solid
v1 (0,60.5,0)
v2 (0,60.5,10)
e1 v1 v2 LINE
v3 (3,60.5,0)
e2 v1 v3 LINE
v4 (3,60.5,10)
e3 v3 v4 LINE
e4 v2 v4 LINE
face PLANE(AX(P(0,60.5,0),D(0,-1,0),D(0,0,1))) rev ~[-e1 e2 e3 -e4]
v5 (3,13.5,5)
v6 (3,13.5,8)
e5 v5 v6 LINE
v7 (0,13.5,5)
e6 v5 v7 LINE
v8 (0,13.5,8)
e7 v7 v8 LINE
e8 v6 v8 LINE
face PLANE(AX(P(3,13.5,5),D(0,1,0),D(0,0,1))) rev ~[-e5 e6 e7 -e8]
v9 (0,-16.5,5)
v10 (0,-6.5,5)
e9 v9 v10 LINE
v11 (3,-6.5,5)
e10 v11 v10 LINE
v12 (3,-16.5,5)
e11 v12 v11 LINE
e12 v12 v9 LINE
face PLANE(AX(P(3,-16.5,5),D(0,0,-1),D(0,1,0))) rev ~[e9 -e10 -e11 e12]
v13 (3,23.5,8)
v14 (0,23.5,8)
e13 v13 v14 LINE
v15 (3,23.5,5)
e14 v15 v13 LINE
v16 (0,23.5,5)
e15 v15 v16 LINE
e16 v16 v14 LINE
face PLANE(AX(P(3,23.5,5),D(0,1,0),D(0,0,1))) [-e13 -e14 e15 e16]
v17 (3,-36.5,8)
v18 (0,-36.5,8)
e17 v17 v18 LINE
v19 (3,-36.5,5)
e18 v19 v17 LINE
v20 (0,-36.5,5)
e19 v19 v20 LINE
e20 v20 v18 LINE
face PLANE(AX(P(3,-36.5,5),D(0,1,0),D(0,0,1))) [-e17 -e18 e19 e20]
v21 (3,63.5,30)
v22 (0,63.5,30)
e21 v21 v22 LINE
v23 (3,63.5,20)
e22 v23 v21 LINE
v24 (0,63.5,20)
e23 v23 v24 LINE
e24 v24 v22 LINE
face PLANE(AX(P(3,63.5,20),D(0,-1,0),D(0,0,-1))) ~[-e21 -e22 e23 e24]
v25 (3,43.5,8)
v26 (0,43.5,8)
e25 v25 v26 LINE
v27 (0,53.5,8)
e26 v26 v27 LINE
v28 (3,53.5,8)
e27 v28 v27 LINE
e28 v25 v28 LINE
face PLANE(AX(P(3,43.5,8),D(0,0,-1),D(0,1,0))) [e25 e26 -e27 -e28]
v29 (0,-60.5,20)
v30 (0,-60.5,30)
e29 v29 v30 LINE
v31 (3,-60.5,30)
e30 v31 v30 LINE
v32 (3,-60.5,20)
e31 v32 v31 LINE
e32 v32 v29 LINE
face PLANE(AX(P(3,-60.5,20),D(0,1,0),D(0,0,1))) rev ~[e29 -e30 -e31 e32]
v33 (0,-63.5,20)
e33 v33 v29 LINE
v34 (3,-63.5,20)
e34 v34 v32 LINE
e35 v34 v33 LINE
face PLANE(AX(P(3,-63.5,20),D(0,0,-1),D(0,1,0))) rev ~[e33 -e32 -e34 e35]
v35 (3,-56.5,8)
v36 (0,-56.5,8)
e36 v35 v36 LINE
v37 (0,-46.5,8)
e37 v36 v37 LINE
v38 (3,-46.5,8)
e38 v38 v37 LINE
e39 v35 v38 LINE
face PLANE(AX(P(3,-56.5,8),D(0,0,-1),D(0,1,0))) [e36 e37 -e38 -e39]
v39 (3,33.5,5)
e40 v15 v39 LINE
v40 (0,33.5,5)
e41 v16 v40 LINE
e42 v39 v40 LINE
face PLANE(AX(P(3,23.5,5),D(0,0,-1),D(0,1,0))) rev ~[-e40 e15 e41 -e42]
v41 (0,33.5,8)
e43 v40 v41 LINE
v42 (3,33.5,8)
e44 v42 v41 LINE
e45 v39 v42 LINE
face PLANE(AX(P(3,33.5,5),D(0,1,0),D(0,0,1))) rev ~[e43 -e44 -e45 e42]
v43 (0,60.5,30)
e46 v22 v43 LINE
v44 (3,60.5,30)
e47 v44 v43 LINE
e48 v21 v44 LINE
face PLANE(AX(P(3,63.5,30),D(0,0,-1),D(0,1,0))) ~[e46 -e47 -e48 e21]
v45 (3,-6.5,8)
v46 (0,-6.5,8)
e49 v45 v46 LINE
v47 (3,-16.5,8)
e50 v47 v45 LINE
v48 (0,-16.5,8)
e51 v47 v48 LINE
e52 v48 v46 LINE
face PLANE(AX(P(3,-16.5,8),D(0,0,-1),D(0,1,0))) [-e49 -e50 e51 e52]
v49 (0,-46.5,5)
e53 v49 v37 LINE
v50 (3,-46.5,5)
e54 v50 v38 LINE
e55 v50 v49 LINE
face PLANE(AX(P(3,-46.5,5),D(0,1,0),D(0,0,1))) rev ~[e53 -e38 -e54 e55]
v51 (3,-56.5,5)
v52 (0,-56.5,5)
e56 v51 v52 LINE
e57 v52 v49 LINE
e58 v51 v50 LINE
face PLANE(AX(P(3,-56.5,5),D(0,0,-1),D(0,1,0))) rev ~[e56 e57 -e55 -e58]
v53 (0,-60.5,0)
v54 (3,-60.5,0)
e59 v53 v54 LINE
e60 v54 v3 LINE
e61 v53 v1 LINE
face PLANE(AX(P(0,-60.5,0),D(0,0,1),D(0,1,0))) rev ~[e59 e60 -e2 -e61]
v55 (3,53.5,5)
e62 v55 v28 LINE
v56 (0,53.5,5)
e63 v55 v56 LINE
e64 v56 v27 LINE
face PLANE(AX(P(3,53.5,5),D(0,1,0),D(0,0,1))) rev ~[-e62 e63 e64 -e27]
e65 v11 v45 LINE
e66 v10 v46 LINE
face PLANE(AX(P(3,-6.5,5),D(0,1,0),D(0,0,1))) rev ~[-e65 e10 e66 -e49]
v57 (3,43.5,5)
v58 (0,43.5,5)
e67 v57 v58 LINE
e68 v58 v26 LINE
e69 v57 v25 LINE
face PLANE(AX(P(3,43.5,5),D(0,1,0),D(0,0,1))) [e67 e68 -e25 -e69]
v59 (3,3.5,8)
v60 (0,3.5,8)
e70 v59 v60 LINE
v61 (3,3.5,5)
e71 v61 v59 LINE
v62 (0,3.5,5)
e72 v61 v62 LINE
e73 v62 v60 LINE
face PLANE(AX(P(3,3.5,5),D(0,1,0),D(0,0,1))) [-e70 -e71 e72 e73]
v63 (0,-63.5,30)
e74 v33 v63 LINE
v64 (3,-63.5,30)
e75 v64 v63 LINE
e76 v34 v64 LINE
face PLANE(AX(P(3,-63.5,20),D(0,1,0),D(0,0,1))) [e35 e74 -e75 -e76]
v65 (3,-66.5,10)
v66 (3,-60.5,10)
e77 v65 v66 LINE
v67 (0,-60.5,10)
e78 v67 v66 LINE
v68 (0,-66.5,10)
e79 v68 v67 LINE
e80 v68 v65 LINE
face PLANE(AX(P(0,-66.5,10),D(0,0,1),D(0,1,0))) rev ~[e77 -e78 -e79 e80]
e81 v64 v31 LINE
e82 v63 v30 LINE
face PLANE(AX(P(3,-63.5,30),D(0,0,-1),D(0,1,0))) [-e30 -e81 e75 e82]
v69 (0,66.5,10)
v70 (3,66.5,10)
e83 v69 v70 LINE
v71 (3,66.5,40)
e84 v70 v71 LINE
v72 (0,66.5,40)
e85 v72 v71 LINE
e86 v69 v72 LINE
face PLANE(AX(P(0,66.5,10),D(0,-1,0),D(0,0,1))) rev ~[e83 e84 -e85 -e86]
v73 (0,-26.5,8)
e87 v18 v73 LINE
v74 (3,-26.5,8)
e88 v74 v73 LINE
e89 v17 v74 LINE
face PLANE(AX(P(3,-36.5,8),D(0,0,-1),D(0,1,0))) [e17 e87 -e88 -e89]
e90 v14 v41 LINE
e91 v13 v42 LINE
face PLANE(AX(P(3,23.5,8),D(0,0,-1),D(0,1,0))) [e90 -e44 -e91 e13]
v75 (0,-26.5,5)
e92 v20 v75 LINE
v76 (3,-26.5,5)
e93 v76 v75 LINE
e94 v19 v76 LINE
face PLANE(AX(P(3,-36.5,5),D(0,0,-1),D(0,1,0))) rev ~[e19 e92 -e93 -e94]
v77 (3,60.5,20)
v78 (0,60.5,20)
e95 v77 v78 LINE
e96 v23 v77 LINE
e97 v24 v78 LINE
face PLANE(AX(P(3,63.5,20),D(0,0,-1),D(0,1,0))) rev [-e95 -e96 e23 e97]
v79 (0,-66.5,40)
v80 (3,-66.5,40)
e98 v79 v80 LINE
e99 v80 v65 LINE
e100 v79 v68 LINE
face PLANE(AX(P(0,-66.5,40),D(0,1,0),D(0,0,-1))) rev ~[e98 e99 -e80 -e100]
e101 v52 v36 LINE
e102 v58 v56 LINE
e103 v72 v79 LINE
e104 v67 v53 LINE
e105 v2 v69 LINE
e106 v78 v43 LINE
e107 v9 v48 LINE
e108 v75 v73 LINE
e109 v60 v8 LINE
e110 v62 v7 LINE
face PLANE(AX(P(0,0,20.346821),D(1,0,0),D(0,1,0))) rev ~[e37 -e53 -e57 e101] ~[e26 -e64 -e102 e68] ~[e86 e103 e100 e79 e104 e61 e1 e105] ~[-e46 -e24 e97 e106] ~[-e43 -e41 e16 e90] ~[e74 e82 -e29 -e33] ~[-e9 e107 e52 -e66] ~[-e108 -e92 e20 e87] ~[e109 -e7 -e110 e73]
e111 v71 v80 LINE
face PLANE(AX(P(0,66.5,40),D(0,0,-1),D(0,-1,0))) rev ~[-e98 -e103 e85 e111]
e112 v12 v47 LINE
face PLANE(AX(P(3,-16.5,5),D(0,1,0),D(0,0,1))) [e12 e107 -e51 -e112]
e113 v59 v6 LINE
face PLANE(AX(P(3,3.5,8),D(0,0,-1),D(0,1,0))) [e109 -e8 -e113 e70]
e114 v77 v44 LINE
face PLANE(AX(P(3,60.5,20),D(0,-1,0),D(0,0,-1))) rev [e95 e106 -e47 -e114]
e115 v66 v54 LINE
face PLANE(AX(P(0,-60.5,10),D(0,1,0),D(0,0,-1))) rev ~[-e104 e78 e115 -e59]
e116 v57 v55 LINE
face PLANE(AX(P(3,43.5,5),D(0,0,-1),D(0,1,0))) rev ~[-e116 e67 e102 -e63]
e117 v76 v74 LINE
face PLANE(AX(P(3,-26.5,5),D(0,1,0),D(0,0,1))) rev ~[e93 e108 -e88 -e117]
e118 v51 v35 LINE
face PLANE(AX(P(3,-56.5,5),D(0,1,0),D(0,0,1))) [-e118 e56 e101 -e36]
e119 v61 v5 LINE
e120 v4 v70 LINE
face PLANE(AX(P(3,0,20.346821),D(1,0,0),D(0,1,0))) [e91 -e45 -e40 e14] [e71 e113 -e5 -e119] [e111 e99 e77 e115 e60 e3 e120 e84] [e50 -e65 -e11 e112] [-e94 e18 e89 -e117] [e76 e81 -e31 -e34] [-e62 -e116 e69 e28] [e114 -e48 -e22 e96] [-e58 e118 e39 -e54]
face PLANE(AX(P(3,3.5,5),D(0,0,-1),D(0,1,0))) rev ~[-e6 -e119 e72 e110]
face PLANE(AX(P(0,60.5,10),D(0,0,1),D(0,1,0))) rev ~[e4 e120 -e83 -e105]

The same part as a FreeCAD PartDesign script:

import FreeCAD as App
import Part
import Sketcher

doc = App.newDocument("Part")
body = doc.addObject("PartDesign::Body", "Body")

# Sketch on YZ plane
sketch1 = doc.addObject("Sketcher::SketchObject", "Sketch")
body.addObject(sketch1)
sketch1.AttachmentSupport = (doc.YZ_Plane, [""])
sketch1.MapMode = "FlatFace"
sketch1.addGeometry(Part.LineSegment(App.Vector(-60, 0, 0), App.Vector(60, 0, 0)), False)
sketch1.addGeometry(Part.LineSegment(App.Vector(60, 0, 0), App.Vector(60, 10, 0)), False)
sketch1.addGeometry(Part.LineSegment(App.Vector(60, 10, 0), App.Vector(66, 10, 0)), False)
sketch1.addGeometry(Part.LineSegment(App.Vector(66, 10, 0), App.Vector(66, 40, 0)), False)
sketch1.addGeometry(Part.LineSegment(App.Vector(66, 40, 0), App.Vector(-66, 40, 0)), False)
sketch1.addGeometry(Part.LineSegment(App.Vector(-66, 40, 0), App.Vector(-66, 10, 0)), False)
sketch1.addGeometry(Part.LineSegment(App.Vector(-66, 10, 0), App.Vector(-60, 10, 0)), False)
sketch1.addGeometry(Part.LineSegment(App.Vector(-60, 10, 0), App.Vector(-60, 0, 0)), False)
sketch1.addConstraint(Sketcher.Constraint("Coincident", 0, 2, 1, 1))
sketch1.addConstraint(Sketcher.Constraint("Coincident", 1, 2, 2, 1))
sketch1.addConstraint(Sketcher.Constraint("Coincident", 2, 2, 3, 1))
sketch1.addConstraint(Sketcher.Constraint("Coincident", 3, 2, 4, 1))
sketch1.addConstraint(Sketcher.Constraint("Coincident", 4, 2, 5, 1))
sketch1.addConstraint(Sketcher.Constraint("Coincident", 5, 2, 6, 1))
sketch1.addConstraint(Sketcher.Constraint("Coincident", 6, 2, 7, 1))
sketch1.addConstraint(Sketcher.Constraint("Coincident", 7, 2, 0, 1))
sketch1.addConstraint(Sketcher.Constraint("Horizontal", 0))
sketch1.addConstraint(Sketcher.Constraint("Vertical", 1))
sketch1.addConstraint(Sketcher.Constraint("Horizontal", 2))
sketch1.addConstraint(Sketcher.Constraint("Vertical", 3))
sketch1.addConstraint(Sketcher.Constraint("Horizontal", 4))
sketch1.addConstraint(Sketcher.Constraint("Vertical", 5))
sketch1.addConstraint(Sketcher.Constraint("Horizontal", 6))
sketch1.addConstraint(Sketcher.Constraint("Vertical", 7))
sketch1.addConstraint(Sketcher.Constraint("Symmetric", 0, 2, 7, 2, -1, 1))
sketch1.addConstraint(Sketcher.Constraint("Symmetric", 2, 2, 5, 2, -2))
sketch1.addConstraint(Sketcher.Constraint("DistanceX", 0, 1, 0, 2, 121.0))
sketch1.addConstraint(Sketcher.Constraint("DistanceX", 2, 1, 2, 2, 6.0))
sketch1.addConstraint(Sketcher.Constraint("DistanceY", 1, 1, 1, 2, 10.0))
sketch1.addConstraint(Sketcher.Constraint("DistanceY", 3, 1, 3, 2, 30.0))
pad1 = doc.addObject("PartDesign::Pad", "Pad")
body.addObject(pad1)
pad1.Profile = sketch1
pad1.Length = 3

# Sketch on YZ plane
sketch2 = doc.addObject("Sketcher::SketchObject", "Sketch001")
body.addObject(sketch2)
sketch2.AttachmentSupport = (doc.YZ_Plane, [""])
sketch2.MapMode = "FlatFace"
sketch2.AttachmentOffset = App.Placement(App.Vector(0, 0, 3), App.Rotation())
sketch2.addGeometry(Part.LineSegment(App.Vector(-56.5, 8, 0), App.Vector(-56.5, 5, 0)), False)
sketch2.addGeometry(Part.LineSegment(App.Vector(-56.5, 5, 0), App.Vector(-46.5, 5, 0)), False)
sketch2.addGeometry(Part.LineSegment(App.Vector(-46.5, 5, 0), App.Vector(-46.5, 8, 0)), False)
sketch2.addGeometry(Part.LineSegment(App.Vector(-46.5, 8, 0), App.Vector(-56.5, 8, 0)), False)
sketch2.addGeometry(Part.LineSegment(App.Vector(-36.5, 8, 0), App.Vector(-36.5, 5, 0)), False)
sketch2.addGeometry(Part.LineSegment(App.Vector(-36.5, 5, 0), App.Vector(-26.5, 5, 0)), False)
sketch2.addGeometry(Part.LineSegment(App.Vector(-26.5, 5, 0), App.Vector(-26.5, 8, 0)), False)
sketch2.addGeometry(Part.LineSegment(App.Vector(-26.5, 8, 0), App.Vector(-36.5, 8, 0)), False)
sketch2.addGeometry(Part.LineSegment(App.Vector(-16.5, 8, 0), App.Vector(-16.5, 5, 0)), False)
sketch2.addGeometry(Part.LineSegment(App.Vector(-16.5, 5, 0), App.Vector(-6.5, 5, 0)), False)
sketch2.addGeometry(Part.LineSegment(App.Vector(-6.5, 5, 0), App.Vector(-6.5, 8, 0)), False)
sketch2.addGeometry(Part.LineSegment(App.Vector(-6.5, 8, 0), App.Vector(-16.5, 8, 0)), False)
sketch2.addGeometry(Part.LineSegment(App.Vector(3.5, 8, 0), App.Vector(3.5, 5, 0)), False)
sketch2.addGeometry(Part.LineSegment(App.Vector(3.5, 5, 0), App.Vector(13.5, 5, 0)), False)
sketch2.addGeometry(Part.LineSegment(App.Vector(13.5, 5, 0), App.Vector(13.5, 8, 0)), False)
sketch2.addGeometry(Part.LineSegment(App.Vector(13.5, 8, 0), App.Vector(3.5, 8, 0)), False)
sketch2.addGeometry(Part.LineSegment(App.Vector(23.5, 8, 0), App.Vector(23.5, 5, 0)), False)
sketch2.addGeometry(Part.LineSegment(App.Vector(23.5, 5, 0), App.Vector(33.5, 5, 0)), False)
sketch2.addGeometry(Part.LineSegment(App.Vector(33.5, 5, 0), App.Vector(33.5, 8, 0)), False)
sketch2.addGeometry(Part.LineSegment(App.Vector(33.5, 8, 0), App.Vector(23.5, 8, 0)), False)
sketch2.addGeometry(Part.LineSegment(App.Vector(43.5, 8, 0), App.Vector(43.5, 5, 0)), False)
sketch2.addGeometry(Part.LineSegment(App.Vector(43.5, 5, 0), App.Vector(53.5, 5, 0)), False)
sketch2.addGeometry(Part.LineSegment(App.Vector(53.5, 5, 0), App.Vector(53.5, 8, 0)), False)
sketch2.addGeometry(Part.LineSegment(App.Vector(53.5, 8, 0), App.Vector(43.5, 8, 0)), False)
sketch2.addConstraint(Sketcher.Constraint("Coincident", 0, 2, 1, 1))
sketch2.addConstraint(Sketcher.Constraint("Coincident", 1, 2, 2, 1))
sketch2.addConstraint(Sketcher.Constraint("Coincident", 2, 2, 3, 1))
sketch2.addConstraint(Sketcher.Constraint("Coincident", 3, 2, 0, 1))
sketch2.addConstraint(Sketcher.Constraint("Coincident", 4, 2, 5, 1))
sketch2.addConstraint(Sketcher.Constraint("Coincident", 5, 2, 6, 1))
sketch2.addConstraint(Sketcher.Constraint("Coincident", 6, 2, 7, 1))
sketch2.addConstraint(Sketcher.Constraint("Coincident", 7, 2, 4, 1))
sketch2.addConstraint(Sketcher.Constraint("Coincident", 8, 2, 9, 1))
sketch2.addConstraint(Sketcher.Constraint("Coincident", 9, 2, 10, 1))
sketch2.addConstraint(Sketcher.Constraint("Coincident", 10, 2, 11, 1))
sketch2.addConstraint(Sketcher.Constraint("Coincident", 11, 2, 8, 1))
sketch2.addConstraint(Sketcher.Constraint("Coincident", 12, 2, 13, 1))
sketch2.addConstraint(Sketcher.Constraint("Coincident", 13, 2, 14, 1))
sketch2.addConstraint(Sketcher.Constraint("Coincident", 14, 2, 15, 1))
sketch2.addConstraint(Sketcher.Constraint("Coincident", 15, 2, 12, 1))
sketch2.addConstraint(Sketcher.Constraint("Coincident", 16, 2, 17, 1))
sketch2.addConstraint(Sketcher.Constraint("Coincident", 17, 2, 18, 1))
sketch2.addConstraint(Sketcher.Constraint("Coincident", 18, 2, 19, 1))
sketch2.addConstraint(Sketcher.Constraint("Coincident", 19, 2, 16, 1))
sketch2.addConstraint(Sketcher.Constraint("Coincident", 20, 2, 21, 1))
sketch2.addConstraint(Sketcher.Constraint("Coincident", 21, 2, 22, 1))
sketch2.addConstraint(Sketcher.Constraint("Coincident", 22, 2, 23, 1))
sketch2.addConstraint(Sketcher.Constraint("Coincident", 23, 2, 20, 1))
sketch2.addConstraint(Sketcher.Constraint("Vertical", 0))
sketch2.addConstraint(Sketcher.Constraint("Horizontal", 1))
sketch2.addConstraint(Sketcher.Constraint("Vertical", 2))
sketch2.addConstraint(Sketcher.Constraint("Horizontal", 3))
sketch2.addConstraint(Sketcher.Constraint("Vertical", 4))
sketch2.addConstraint(Sketcher.Constraint("Horizontal", 5))
sketch2.addConstraint(Sketcher.Constraint("Vertical", 6))
sketch2.addConstraint(Sketcher.Constraint("Horizontal", 7))
sketch2.addConstraint(Sketcher.Constraint("Vertical", 8))
sketch2.addConstraint(Sketcher.Constraint("Horizontal", 9))
sketch2.addConstraint(Sketcher.Constraint("Vertical", 10))
sketch2.addConstraint(Sketcher.Constraint("Horizontal", 11))
sketch2.addConstraint(Sketcher.Constraint("Vertical", 12))
sketch2.addConstraint(Sketcher.Constraint("Horizontal", 13))
sketch2.addConstraint(Sketcher.Constraint("Vertical", 14))
sketch2.addConstraint(Sketcher.Constraint("Horizontal", 15))
sketch2.addConstraint(Sketcher.Constraint("Vertical", 16))
sketch2.addConstraint(Sketcher.Constraint("Horizontal", 17))
sketch2.addConstraint(Sketcher.Constraint("Vertical", 18))
sketch2.addConstraint(Sketcher.Constraint("Horizontal", 19))
sketch2.addConstraint(Sketcher.Constraint("Vertical", 20))
sketch2.addConstraint(Sketcher.Constraint("Horizontal", 21))
sketch2.addConstraint(Sketcher.Constraint("Vertical", 22))
sketch2.addConstraint(Sketcher.Constraint("Horizontal", 23))
sketch2.addConstraint(Sketcher.Constraint("Horizontal", 1, 2, 4, 2))
sketch2.addConstraint(Sketcher.Constraint("Horizontal", 3, 2, 6, 2))
sketch2.addConstraint(Sketcher.Constraint("Horizontal", 5, 2, 8, 2))
sketch2.addConstraint(Sketcher.Constraint("Horizontal", 7, 2, 10, 2))
sketch2.addConstraint(Sketcher.Constraint("Horizontal", 9, 2, 12, 2))
sketch2.addConstraint(Sketcher.Constraint("Horizontal", 11, 2, 14, 2))
sketch2.addConstraint(Sketcher.Constraint("Horizontal", 13, 2, 16, 2))
sketch2.addConstraint(Sketcher.Constraint("Horizontal", 15, 2, 18, 2))
sketch2.addConstraint(Sketcher.Constraint("Horizontal", 17, 2, 20, 2))
sketch2.addConstraint(Sketcher.Constraint("Horizontal", 19, 2, 22, 2))
sketch2.addConstraint(Sketcher.Constraint("Equal", 3, 5))
sketch2.addConstraint(Sketcher.Constraint("Equal", 7, 9))
sketch2.addConstraint(Sketcher.Constraint("Equal", 11, 13))
sketch2.addConstraint(Sketcher.Constraint("Equal", 15, 17))
sketch2.addConstraint(Sketcher.Constraint("Equal", 19, 21))
sketch2.addConstraint(Sketcher.Constraint("DistanceX", 1, 1, 1, 2, 10.0))
sketch2.addConstraint(Sketcher.Constraint("DistanceY", 0, 2, 0, 1, 3.0))
sketch2.addConstraint(Sketcher.Constraint("DistanceY", -1, 1, 0, 2, 5.0))
sketch2.addConstraint(Sketcher.Constraint("DistanceX", 1, 2, 4, 2, 10.0))
sketch2.addConstraint(Sketcher.Constraint("DistanceX", 5, 2, 8, 2, 10.0))
sketch2.addConstraint(Sketcher.Constraint("DistanceX", 9, 2, 12, 2, 10.0))
sketch2.addConstraint(Sketcher.Constraint("DistanceX", 13, 2, 16, 2, 10.0))
sketch2.addConstraint(Sketcher.Constraint("DistanceX", 17, 2, 20, 2, 10.0))
sketch2.addConstraint(Sketcher.Constraint("DistanceX", 0, 2, -1, 1, 56.5))
pocket1 = doc.addObject("PartDesign::Pocket", "Pocket")
body.addObject(pocket1)
pocket1.Profile = sketch2
pocket1.Type = "ThroughAll"

# Sketch on YZ plane
sketch3 = doc.addObject("Sketcher::SketchObject", "Sketch002")
body.addObject(sketch3)
sketch3.AttachmentSupport = (doc.YZ_Plane, [""])
sketch3.MapMode = "FlatFace"
sketch3.AttachmentOffset = App.Placement(App.Vector(0, 0, 3), App.Rotation())
sketch3.addGeometry(Part.LineSegment(App.Vector(-63.5, 30, 0), App.Vector(-63.5, 20, 0)), False)
sketch3.addGeometry(Part.LineSegment(App.Vector(-63.5, 20, 0), App.Vector(-60.5, 20, 0)), False)
sketch3.addGeometry(Part.LineSegment(App.Vector(-60.5, 20, 0), App.Vector(-60.5, 30, 0)), False)
sketch3.addGeometry(Part.LineSegment(App.Vector(-60.5, 30, 0), App.Vector(-63.5, 30, 0)), False)
sketch3.addConstraint(Sketcher.Constraint("Coincident", 0, 2, 1, 1))
sketch3.addConstraint(Sketcher.Constraint("Coincident", 1, 2, 2, 1))
sketch3.addConstraint(Sketcher.Constraint("Coincident", 2, 2, 3, 1))
sketch3.addConstraint(Sketcher.Constraint("Coincident", 3, 2, 0, 1))
sketch3.addConstraint(Sketcher.Constraint("Vertical", 0))
sketch3.addConstraint(Sketcher.Constraint("Horizontal", 1))
sketch3.addConstraint(Sketcher.Constraint("Vertical", 2))
sketch3.addConstraint(Sketcher.Constraint("Horizontal", 3))
sketch3.addConstraint(Sketcher.Constraint("DistanceX", 1, 1, 1, 2, 3.0))
sketch3.addConstraint(Sketcher.Constraint("DistanceY", 0, 2, 0, 1, 10.0))
sketch3.addConstraint(Sketcher.Constraint("DistanceY", -1, 1, 0, 2, 20.0))
sketch3.addConstraint(Sketcher.Constraint("DistanceX", 0, 2, -1, 1, 63.5))
pocket2 = doc.addObject("PartDesign::Pocket", "Pocket001")
body.addObject(pocket2)
pocket2.Profile = sketch3
pocket2.Type = "ThroughAll"
doc.recompute()

mirrored = doc.addObject("PartDesign::Mirrored", "Mirrored")
body.addObject(mirrored)
mirrored.Originals = [pocket2]
mirrored.MirrorPlane = (doc.XZ_Plane, [""])
body.Tip = mirrored

doc.recompute()
